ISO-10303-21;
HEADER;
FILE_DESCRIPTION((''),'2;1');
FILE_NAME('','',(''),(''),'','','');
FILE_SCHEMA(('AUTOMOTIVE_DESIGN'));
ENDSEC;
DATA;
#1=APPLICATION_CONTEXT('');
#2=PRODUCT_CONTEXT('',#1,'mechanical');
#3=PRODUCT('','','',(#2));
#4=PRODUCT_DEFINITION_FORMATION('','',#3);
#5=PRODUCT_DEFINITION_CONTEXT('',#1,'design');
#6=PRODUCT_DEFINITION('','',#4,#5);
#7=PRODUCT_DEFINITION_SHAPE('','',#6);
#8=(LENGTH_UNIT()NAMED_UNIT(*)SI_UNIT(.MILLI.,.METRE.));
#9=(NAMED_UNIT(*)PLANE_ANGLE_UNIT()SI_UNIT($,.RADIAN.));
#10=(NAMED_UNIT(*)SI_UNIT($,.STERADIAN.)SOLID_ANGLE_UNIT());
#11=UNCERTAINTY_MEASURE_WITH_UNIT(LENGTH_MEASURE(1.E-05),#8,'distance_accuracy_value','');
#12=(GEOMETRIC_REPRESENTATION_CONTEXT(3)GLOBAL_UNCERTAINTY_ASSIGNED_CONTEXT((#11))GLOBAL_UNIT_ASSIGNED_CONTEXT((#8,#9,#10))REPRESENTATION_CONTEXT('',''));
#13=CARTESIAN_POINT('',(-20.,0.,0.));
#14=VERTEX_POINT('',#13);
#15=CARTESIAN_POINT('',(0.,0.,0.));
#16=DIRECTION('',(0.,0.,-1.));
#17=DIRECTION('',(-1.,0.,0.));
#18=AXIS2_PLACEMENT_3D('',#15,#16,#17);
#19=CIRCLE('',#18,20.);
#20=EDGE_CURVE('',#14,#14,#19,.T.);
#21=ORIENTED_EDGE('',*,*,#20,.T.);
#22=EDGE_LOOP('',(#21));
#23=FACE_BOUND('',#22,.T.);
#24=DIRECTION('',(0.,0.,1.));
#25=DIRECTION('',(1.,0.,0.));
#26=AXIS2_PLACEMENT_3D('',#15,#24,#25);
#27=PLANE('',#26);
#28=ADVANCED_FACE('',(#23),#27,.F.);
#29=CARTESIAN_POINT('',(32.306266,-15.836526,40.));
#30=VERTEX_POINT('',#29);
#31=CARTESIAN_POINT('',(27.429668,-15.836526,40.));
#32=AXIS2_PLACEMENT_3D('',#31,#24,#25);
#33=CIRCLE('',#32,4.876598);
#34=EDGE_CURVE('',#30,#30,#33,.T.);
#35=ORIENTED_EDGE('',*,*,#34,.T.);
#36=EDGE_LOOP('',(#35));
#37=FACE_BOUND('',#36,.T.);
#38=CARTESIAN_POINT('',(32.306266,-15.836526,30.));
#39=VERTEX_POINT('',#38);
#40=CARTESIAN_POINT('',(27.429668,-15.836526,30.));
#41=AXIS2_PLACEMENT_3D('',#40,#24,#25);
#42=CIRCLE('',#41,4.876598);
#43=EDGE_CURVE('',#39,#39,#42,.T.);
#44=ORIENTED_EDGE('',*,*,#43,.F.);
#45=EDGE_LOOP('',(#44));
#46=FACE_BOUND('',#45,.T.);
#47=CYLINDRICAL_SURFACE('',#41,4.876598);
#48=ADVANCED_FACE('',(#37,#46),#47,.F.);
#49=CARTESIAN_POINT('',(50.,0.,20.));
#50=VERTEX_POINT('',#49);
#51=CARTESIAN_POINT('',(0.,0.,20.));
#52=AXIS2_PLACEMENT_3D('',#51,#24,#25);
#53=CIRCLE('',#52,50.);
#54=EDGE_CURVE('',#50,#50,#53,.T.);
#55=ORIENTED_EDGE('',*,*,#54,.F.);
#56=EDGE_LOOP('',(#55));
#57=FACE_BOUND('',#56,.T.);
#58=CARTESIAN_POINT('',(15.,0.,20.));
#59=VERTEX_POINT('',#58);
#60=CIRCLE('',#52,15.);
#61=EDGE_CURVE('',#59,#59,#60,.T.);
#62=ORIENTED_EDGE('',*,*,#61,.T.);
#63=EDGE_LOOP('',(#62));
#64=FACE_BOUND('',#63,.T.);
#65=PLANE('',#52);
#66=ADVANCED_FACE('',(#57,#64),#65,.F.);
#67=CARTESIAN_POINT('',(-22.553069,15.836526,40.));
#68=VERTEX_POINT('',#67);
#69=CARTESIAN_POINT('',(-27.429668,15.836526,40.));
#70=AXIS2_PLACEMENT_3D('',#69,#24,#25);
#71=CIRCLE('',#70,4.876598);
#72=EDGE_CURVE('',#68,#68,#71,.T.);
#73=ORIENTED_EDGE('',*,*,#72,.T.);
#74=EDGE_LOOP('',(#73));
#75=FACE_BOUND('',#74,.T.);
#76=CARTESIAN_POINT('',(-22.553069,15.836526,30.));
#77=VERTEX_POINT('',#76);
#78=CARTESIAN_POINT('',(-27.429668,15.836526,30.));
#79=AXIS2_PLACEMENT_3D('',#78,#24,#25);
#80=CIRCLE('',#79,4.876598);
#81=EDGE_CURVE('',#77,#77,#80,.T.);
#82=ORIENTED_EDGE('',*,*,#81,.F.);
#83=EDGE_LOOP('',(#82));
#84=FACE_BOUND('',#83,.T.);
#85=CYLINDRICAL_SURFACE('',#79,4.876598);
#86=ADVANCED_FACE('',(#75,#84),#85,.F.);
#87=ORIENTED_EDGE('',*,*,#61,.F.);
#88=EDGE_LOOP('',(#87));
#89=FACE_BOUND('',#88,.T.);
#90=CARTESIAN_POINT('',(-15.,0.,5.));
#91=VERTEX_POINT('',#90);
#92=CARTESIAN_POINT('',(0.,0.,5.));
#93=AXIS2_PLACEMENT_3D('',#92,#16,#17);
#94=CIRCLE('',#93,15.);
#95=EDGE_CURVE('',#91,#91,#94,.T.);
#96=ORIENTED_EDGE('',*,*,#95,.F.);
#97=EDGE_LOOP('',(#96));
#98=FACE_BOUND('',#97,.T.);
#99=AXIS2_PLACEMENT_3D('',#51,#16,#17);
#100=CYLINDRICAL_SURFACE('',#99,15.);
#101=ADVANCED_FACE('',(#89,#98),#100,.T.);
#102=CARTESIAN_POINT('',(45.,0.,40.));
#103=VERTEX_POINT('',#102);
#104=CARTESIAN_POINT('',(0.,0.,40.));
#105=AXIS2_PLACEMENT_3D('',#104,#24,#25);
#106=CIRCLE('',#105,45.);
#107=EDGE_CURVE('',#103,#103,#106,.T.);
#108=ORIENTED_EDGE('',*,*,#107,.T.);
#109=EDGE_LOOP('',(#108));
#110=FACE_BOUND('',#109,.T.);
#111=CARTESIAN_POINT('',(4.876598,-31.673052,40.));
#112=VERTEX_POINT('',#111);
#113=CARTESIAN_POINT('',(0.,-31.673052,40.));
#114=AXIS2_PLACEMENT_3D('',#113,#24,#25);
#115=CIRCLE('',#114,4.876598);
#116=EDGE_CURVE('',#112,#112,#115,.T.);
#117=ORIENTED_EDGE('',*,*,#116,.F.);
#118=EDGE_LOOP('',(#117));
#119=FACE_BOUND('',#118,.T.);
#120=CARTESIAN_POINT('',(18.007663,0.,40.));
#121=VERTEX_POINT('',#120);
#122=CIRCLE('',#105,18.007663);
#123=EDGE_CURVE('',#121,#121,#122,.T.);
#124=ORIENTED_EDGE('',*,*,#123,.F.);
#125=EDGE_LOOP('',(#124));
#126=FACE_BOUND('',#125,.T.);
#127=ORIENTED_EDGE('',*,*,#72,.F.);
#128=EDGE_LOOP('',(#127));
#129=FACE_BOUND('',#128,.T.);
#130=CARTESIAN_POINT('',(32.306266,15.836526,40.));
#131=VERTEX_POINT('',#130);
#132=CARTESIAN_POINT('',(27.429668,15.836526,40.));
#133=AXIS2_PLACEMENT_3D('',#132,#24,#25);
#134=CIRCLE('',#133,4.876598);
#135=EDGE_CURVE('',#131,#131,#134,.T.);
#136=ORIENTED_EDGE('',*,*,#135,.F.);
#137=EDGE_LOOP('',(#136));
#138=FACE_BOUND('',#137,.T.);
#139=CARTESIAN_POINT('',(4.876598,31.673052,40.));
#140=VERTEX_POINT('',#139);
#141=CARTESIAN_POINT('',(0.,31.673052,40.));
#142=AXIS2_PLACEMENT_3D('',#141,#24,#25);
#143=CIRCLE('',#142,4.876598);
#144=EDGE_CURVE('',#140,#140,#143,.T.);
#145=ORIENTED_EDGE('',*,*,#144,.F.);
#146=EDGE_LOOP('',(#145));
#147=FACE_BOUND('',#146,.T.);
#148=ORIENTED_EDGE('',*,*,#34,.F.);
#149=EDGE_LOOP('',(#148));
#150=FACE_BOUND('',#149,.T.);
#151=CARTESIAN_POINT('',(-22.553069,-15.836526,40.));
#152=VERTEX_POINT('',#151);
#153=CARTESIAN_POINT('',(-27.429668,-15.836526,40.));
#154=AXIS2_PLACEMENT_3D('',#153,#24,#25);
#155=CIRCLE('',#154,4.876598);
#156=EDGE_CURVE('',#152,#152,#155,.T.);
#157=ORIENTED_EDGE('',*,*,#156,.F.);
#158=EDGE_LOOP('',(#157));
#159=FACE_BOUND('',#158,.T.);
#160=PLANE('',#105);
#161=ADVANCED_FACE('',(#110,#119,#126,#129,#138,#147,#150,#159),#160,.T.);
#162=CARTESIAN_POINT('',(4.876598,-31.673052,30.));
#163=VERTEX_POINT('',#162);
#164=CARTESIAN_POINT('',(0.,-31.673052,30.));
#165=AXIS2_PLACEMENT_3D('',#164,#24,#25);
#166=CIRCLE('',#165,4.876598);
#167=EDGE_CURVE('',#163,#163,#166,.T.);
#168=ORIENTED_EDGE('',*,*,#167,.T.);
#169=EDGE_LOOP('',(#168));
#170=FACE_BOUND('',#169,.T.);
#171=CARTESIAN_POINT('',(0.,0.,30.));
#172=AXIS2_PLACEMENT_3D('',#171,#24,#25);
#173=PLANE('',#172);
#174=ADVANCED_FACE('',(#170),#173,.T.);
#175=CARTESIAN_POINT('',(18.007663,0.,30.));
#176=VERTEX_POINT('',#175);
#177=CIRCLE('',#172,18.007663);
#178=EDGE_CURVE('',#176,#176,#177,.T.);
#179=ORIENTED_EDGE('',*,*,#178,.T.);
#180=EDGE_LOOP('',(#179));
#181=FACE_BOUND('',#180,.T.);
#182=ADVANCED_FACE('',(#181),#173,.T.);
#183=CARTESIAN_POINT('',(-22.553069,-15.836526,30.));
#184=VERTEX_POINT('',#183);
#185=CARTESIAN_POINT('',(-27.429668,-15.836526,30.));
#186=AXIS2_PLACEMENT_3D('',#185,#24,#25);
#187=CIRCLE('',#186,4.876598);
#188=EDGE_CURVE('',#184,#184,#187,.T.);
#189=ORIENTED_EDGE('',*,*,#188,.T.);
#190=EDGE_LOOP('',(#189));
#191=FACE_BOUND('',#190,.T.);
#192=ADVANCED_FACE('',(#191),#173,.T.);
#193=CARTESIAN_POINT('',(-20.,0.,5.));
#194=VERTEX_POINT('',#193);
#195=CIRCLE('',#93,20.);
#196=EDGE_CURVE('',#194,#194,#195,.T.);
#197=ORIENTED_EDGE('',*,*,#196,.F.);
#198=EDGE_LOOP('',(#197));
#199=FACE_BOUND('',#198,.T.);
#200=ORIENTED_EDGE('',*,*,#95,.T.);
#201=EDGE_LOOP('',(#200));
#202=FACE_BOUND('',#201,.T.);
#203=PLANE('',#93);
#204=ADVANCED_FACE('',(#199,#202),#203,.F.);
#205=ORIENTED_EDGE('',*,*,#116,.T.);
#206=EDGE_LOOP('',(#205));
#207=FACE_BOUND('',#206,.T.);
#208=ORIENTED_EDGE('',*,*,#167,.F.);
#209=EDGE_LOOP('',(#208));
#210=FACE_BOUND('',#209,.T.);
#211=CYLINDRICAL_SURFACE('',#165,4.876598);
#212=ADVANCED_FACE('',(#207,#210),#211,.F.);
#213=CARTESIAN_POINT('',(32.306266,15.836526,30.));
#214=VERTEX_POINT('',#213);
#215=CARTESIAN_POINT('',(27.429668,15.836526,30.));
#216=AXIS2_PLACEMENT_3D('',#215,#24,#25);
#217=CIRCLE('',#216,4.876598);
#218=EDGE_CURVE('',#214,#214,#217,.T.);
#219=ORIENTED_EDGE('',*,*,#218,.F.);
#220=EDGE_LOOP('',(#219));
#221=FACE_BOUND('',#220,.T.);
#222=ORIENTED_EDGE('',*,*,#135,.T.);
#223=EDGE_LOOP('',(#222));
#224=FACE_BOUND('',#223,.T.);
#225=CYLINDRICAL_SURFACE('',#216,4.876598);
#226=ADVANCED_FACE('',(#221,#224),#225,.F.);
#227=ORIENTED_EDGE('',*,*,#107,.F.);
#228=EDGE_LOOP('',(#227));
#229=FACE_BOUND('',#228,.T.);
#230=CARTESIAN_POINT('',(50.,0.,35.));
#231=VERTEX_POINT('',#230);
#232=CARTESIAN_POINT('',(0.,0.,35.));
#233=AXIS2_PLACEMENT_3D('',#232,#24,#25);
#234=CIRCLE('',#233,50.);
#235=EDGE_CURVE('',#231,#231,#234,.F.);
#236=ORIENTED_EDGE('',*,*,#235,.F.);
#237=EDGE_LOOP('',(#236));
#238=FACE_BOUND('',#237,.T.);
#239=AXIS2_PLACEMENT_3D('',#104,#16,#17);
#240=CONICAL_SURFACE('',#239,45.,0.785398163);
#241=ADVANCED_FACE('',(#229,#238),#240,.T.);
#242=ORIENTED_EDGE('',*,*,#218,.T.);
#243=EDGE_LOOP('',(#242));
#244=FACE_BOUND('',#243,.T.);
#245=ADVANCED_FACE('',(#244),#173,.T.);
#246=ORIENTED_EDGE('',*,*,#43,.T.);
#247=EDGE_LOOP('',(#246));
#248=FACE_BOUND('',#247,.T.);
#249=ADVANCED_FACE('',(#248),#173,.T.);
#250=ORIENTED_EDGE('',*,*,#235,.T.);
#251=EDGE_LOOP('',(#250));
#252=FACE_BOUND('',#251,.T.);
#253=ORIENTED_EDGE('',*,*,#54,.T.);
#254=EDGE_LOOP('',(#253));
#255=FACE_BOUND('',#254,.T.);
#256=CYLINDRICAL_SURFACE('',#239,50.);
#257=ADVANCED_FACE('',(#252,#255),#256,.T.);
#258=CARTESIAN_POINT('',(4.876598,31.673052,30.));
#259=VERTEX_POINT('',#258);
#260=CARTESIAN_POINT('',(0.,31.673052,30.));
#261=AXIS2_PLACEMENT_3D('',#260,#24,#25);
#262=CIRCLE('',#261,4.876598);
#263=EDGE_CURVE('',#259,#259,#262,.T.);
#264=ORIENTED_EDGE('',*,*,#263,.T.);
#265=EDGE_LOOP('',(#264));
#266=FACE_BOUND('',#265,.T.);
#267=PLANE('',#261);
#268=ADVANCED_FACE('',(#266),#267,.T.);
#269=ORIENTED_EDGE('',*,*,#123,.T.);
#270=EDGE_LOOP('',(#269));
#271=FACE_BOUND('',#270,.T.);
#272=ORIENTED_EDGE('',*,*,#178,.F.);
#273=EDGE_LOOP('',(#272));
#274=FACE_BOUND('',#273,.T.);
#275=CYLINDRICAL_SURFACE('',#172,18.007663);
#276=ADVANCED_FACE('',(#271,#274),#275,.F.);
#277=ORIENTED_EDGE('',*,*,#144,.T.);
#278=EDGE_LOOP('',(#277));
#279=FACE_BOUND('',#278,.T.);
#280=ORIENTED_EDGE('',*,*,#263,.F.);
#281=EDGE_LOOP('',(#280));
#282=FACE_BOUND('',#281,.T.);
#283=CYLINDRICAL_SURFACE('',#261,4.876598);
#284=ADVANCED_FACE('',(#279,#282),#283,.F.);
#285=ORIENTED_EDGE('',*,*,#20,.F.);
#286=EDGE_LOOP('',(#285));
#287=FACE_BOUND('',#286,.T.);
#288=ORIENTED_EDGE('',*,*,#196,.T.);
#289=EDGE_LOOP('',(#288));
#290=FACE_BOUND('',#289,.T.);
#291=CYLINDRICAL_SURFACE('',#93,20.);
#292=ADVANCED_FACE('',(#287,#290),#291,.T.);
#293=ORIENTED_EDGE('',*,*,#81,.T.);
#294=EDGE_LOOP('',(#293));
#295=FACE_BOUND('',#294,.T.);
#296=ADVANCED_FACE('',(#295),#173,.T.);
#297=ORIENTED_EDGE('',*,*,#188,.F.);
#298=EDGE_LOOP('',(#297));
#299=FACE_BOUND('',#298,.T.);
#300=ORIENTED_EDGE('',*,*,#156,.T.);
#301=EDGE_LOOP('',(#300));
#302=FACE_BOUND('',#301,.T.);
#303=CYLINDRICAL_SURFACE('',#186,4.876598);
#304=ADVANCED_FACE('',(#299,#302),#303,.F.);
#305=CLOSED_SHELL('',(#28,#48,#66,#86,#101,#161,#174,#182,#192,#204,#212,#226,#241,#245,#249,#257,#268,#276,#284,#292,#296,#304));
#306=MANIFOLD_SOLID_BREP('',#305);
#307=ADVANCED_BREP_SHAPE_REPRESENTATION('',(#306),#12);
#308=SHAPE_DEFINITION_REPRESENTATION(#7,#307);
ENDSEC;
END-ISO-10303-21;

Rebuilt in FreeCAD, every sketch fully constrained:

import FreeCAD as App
import Part
import Sketcher
from FreeCAD import Vector


def edges_at(feature, points):
    """Names of the edges that pass closest to the given points."""
    edges = feature.Shape.Edges
    near = lambda p: min(range(len(edges)), key=lambda i: edges[i].distToShape(Part.Vertex(*p))[0])
    return sorted({f"Edge{near(p) + 1}" for p in points})

doc = App.newDocument("Part")
body = doc.addObject("PartDesign::Body", "Body")

sketch1 = body.newObject("Sketcher::SketchObject", "Sketch")
sketch1.AttachmentSupport = (doc.getObject("XY_Plane"), [""])
sketch1.MapMode = "FlatFace"
sketch1.addGeometry(Part.Circle(Vector(0, 0, 0), Vector(0, 0, 1), 15), False)
sketch1.addConstraint([
    Sketcher.Constraint("Coincident", 0, 3, -1, 1),
    Sketcher.Constraint("Diameter", 0, 30.0),
])
pad1 = body.newObject("PartDesign::Pad", "Pad")
pad1.Profile = sketch1
pad1.Length = 20

sketch2 = body.newObject("Sketcher::SketchObject", "Sketch001")
sketch2.AttachmentSupport = (doc.getObject("XY_Plane"), [""])
sketch2.MapMode = "FlatFace"
sketch2.AttachmentOffset = App.Placement(Vector(0, 0, 20), App.Rotation())
sketch2.addGeometry(Part.Circle(Vector(0, 0, 0), Vector(0, 0, 1), 50), False)
sketch2.addConstraint([
    Sketcher.Constraint("Coincident", 0, 3, -1, 1),
    Sketcher.Constraint("Diameter", 0, 100.0),
])
pad2 = body.newObject("PartDesign::Pad", "Pad001")
pad2.Profile = sketch2
pad2.Length = 20
doc.recompute()

chamfer = body.newObject("PartDesign::Chamfer", "Chamfer")
chamfer.Base = (pad2, edges_at(pad2, [(-50, 0, 40)]))
chamfer.Size = 5

sketch3 = body.newObject("Sketcher::SketchObject", "Sketch002")
sketch3.AttachmentSupport = (doc.getObject("XY_Plane"), [""])
sketch3.MapMode = "FlatFace"
sketch3.AttachmentOffset = App.Placement(Vector(0, 0, 40), App.Rotation())
sketch3.addGeometry([
    Part.Circle(Vector(27.4, 15.8, 0), Vector(0, 0, 1), 4.9),
    Part.Circle(Vector(0, 0, 0), Vector(0, 0, 1), 18),
    Part.Circle(Vector(27.4, -15.8, 0), Vector(0, 0, 1), 4.9),
    Part.Circle(Vector(0, -31.7, 0), Vector(0, 0, 1), 4.9),
    Part.Circle(Vector(-27.4, -15.8, 0), Vector(0, 0, 1), 4.9),
    Part.Circle(Vector(-27.4, 15.8, 0), Vector(0, 0, 1), 4.9),
    Part.Circle(Vector(0, 31.7, 0), Vector(0, 0, 1), 4.9),
], False)
sketch3.addConstraint([
    Sketcher.Constraint("Coincident", 1, 3, -1, 1),
    Sketcher.Constraint("Equal", 0, 2),
    Sketcher.Constraint("Equal", 2, 3),
    Sketcher.Constraint("Equal", 3, 4),
    Sketcher.Constraint("Equal", 4, 5),
    Sketcher.Constraint("Equal", 5, 6),
    Sketcher.Constraint("Symmetric", 0, 3, 4, 3, -1, 1),
    Sketcher.Constraint("Symmetric", 2, 3, 5, 3, -1, 1),
    Sketcher.Constraint("Symmetric", 3, 3, 6, 3, -1, 1),
    Sketcher.Constraint("Symmetric", 2, 3, 4, 3, -2),
    Sketcher.Constraint("PointOnObject", 3, 3, -2),
    Sketcher.Constraint("Diameter", 0, 9.753197),
    Sketcher.Constraint("Diameter", 1, 36.015326),
    Sketcher.Constraint("DistanceY", 3, 3, 0, 3, 47.509579),
    Sketcher.Constraint("DistanceX", -1, 1, 0, 3, 27.429668),
    Sketcher.Constraint("DistanceY", -1, 1, 0, 3, 15.836526),
])
pocket1 = body.newObject("PartDesign::Pocket", "Pocket")
pocket1.Profile = sketch3
pocket1.Length = 10

sketch4 = body.newObject("Sketcher::SketchObject", "Sketch003")
sketch4.AttachmentSupport = (doc.getObject("XY_Plane"), [""])
sketch4.MapMode = "FlatFace"
sketch4.addGeometry(Part.Circle(Vector(0, 0, 0), Vector(0, 0, 1), 20), False)
sketch4.addConstraint([
    Sketcher.Constraint("Coincident", 0, 3, -1, 1),
    Sketcher.Constraint("Diameter", 0, 40.0),
])
pad3 = body.newObject("PartDesign::Pad", "Pad002")
pad3.Profile = sketch4
pad3.Length = 5

doc.recompute()
